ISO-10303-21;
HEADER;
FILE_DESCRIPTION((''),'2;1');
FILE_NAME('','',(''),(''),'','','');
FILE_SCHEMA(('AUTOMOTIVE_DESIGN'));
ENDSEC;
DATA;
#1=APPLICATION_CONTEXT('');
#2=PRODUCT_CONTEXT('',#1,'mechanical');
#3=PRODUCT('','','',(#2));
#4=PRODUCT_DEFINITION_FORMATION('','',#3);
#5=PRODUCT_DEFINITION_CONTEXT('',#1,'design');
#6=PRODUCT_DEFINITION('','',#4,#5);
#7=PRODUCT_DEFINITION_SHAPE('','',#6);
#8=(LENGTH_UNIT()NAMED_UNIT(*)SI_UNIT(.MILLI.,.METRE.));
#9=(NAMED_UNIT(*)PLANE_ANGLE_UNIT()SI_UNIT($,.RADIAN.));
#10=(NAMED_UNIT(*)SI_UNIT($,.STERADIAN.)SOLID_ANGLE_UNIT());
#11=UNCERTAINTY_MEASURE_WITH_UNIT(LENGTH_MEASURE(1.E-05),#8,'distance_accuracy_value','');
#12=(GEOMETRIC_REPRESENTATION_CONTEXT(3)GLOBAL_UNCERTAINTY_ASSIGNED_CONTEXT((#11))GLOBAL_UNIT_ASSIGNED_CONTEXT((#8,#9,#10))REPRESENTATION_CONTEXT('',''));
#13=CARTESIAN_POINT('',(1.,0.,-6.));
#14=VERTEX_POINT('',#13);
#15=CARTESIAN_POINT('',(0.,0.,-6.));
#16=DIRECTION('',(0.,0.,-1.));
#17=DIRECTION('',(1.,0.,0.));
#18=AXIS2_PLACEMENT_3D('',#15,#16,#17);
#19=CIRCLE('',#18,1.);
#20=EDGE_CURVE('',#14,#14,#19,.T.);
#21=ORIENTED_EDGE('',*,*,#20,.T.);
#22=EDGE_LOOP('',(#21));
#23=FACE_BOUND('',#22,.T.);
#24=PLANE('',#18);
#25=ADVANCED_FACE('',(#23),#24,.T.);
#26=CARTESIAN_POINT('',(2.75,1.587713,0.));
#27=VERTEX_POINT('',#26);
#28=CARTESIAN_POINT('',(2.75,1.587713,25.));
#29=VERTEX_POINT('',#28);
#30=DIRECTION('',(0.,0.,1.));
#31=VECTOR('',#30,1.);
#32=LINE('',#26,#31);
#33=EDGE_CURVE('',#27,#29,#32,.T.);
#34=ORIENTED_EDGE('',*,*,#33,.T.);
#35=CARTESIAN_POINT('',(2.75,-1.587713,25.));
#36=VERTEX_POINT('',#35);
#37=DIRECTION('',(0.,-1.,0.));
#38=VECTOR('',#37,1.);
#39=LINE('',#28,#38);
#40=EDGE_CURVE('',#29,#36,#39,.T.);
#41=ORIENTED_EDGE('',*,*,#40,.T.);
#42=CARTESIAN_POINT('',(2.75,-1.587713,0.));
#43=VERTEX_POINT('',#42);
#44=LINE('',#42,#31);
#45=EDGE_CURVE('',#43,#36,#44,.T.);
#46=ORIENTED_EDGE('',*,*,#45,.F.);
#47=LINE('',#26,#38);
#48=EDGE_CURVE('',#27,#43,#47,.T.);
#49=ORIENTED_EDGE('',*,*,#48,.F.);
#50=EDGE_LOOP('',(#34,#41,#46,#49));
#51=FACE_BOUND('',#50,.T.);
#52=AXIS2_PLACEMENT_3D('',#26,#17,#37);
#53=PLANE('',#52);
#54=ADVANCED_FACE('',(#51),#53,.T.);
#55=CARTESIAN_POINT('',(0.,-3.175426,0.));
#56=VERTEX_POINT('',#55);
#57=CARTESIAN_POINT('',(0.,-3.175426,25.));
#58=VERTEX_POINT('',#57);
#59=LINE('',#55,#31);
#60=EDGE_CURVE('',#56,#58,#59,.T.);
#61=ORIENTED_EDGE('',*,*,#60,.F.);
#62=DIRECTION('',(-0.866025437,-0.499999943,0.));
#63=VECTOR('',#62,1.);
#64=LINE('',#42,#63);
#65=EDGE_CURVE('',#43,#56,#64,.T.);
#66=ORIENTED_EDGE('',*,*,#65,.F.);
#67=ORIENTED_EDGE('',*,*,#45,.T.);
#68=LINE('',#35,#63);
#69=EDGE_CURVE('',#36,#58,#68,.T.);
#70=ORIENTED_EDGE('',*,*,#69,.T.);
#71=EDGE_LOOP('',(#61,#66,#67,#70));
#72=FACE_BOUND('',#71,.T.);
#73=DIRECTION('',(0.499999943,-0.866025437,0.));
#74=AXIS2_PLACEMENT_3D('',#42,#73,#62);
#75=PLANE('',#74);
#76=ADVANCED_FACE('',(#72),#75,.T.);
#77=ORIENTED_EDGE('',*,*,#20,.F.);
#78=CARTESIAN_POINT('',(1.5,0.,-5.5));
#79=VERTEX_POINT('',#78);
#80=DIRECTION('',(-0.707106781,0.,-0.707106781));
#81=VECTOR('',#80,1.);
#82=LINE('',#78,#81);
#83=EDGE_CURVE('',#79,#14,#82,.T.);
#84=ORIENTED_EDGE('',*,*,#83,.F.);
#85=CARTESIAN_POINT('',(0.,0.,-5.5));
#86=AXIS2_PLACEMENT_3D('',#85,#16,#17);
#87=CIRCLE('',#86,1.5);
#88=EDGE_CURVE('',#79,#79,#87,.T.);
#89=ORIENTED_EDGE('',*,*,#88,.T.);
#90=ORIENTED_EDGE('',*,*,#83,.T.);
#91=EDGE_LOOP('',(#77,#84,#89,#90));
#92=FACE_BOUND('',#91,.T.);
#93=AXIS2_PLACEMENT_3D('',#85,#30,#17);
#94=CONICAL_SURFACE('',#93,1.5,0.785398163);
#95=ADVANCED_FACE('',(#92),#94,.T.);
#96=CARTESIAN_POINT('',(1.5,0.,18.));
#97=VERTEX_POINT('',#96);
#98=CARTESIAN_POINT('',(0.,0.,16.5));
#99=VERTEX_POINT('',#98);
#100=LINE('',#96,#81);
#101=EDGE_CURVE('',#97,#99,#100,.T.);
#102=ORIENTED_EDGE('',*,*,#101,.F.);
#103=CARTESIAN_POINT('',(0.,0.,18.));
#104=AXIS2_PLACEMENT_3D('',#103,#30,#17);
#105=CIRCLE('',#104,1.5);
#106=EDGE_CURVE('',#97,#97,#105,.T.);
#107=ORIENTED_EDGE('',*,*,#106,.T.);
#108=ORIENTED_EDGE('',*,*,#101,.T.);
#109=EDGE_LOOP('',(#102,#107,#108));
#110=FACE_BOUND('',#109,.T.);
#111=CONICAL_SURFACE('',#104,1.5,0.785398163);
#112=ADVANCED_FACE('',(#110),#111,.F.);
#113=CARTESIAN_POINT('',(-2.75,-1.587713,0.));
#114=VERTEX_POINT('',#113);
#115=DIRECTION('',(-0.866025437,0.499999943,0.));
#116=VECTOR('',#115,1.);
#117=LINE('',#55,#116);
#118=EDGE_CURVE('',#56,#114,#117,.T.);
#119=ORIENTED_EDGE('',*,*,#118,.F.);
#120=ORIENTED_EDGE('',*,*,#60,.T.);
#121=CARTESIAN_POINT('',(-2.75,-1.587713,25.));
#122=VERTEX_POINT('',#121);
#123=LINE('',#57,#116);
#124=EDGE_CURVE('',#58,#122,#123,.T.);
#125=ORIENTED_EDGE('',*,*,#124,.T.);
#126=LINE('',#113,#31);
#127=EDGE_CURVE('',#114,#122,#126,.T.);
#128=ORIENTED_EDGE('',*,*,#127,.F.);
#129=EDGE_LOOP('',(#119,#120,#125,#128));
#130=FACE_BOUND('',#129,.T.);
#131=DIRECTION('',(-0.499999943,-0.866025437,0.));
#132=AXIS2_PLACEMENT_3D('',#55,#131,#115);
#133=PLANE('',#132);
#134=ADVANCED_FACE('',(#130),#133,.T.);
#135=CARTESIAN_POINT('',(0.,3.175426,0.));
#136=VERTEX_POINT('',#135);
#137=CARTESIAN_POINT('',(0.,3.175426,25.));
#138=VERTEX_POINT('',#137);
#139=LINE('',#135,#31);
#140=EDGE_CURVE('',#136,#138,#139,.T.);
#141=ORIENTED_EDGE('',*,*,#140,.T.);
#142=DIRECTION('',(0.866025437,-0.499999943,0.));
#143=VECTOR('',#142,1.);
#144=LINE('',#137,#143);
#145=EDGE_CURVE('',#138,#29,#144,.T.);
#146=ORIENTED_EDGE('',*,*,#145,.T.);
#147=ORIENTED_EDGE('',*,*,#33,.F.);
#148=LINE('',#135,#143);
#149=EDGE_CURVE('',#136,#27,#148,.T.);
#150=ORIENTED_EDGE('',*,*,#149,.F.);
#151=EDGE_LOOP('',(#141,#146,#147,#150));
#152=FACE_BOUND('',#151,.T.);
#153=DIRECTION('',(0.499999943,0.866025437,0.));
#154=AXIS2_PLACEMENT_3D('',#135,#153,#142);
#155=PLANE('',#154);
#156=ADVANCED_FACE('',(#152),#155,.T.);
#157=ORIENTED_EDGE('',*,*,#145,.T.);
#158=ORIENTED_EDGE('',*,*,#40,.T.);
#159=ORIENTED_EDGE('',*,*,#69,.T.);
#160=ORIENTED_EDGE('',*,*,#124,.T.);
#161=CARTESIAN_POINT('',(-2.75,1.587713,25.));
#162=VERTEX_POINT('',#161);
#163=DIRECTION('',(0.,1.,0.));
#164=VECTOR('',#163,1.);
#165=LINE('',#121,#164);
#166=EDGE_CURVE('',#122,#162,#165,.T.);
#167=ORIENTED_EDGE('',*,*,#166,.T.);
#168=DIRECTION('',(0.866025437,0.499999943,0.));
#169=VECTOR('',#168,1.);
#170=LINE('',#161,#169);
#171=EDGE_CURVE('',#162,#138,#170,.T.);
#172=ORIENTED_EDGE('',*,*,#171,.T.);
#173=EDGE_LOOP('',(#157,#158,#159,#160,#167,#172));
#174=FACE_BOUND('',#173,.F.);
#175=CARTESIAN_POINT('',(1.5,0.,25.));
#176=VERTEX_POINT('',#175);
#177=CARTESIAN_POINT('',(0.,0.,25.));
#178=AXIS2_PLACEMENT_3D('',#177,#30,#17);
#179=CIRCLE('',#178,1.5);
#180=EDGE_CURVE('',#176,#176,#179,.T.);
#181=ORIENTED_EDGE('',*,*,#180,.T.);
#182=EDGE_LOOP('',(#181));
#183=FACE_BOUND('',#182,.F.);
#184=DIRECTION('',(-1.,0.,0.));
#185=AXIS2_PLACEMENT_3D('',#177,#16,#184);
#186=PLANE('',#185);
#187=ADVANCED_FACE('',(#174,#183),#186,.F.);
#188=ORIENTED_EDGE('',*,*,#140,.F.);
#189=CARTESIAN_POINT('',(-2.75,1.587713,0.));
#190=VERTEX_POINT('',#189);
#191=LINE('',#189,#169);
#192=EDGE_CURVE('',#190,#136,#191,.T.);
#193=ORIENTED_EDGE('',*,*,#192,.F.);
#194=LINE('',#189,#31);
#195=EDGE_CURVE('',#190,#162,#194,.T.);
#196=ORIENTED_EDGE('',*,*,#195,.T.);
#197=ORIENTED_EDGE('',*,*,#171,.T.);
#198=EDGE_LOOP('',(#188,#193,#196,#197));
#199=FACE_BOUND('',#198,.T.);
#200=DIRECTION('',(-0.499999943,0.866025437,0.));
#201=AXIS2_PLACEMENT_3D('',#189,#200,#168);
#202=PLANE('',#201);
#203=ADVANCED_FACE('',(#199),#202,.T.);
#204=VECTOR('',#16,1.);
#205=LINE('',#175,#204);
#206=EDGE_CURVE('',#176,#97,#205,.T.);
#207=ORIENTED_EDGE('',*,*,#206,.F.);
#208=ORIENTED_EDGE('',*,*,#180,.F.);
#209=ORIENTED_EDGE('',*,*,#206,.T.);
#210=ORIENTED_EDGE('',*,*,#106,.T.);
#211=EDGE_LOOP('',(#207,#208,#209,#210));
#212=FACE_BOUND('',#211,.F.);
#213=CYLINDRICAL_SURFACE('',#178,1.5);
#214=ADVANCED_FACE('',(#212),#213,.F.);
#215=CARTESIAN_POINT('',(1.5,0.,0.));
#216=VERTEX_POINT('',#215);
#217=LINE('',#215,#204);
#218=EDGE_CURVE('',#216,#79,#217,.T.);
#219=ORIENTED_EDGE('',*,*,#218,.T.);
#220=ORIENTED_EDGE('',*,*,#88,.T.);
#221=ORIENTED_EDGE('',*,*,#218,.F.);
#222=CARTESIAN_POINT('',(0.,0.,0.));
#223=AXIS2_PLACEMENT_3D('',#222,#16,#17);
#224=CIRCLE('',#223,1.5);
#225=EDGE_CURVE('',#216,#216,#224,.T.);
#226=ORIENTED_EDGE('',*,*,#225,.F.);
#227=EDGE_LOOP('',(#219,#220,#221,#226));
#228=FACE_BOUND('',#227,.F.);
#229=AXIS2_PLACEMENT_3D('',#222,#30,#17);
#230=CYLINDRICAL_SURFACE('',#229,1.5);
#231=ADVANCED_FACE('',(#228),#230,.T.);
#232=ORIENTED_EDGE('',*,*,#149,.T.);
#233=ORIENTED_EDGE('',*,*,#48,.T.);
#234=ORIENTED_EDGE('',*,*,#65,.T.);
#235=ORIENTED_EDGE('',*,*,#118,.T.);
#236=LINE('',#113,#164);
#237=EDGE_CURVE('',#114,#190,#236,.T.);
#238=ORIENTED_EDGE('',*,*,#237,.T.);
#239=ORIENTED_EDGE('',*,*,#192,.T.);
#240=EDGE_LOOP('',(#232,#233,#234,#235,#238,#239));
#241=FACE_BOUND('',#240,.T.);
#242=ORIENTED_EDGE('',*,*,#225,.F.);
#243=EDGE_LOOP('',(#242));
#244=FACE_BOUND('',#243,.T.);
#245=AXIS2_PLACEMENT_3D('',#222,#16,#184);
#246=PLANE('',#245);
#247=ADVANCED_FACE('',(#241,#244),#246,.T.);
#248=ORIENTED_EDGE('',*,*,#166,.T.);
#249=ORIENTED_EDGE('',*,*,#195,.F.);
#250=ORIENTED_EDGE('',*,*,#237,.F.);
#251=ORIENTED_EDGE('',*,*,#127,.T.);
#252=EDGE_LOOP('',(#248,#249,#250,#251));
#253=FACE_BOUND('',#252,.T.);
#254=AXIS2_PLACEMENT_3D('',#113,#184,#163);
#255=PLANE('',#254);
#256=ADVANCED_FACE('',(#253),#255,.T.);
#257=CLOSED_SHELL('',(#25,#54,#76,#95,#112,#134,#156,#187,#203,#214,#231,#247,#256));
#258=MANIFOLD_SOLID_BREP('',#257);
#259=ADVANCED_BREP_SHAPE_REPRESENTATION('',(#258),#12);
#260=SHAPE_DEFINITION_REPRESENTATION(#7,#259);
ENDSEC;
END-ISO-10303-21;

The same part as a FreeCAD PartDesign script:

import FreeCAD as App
import Part
import Sketcher
Q = App.Units.Quantity


def edges_at(feature, points):
    """Names of the edges that pass closest to the given points."""
    edges = feature.Shape.Edges
    near = lambda p: min(range(len(edges)), key=lambda i: edges[i].distToShape(Part.Vertex(*p))[0])
    return sorted({f"Edge{near(p) + 1}" for p in points})


def add_polygon(sketch, points):
    """Adds a closed chain of lines whose ends are joined by coincident constraints."""
    first, n = sketch.GeometryCount, len(points)
    for a, b in zip(points, points[1:] + points[:1]):
        sketch.addGeometry(Part.LineSegment(App.Vector(*a, 0), App.Vector(*b, 0)), False)
    for i in range(n):
        sketch.addConstraint(Sketcher.Constraint("Coincident", first + i, 2, first + (i + 1) % n, 1))

doc = App.newDocument("Part")
params = doc.addObject("Spreadsheet::Sheet", "Params")
for row, (alias, value) in enumerate([
    ("pad1_length", "25 mm"),
    ("sketch2_diameter", "3 mm"),
    ("pad2_length", "6 mm"),
    ("sketch3_diameter", "3 mm"),
    ("pocket1_length", "8.5 mm"),
    ("chamfer_size", "1.5 mm"),
    ("chamfer2_size", "0.5 mm"),
], start=1):
    params.set(f"A{row}", alias)
    params.set(f"B{row}", "=" + value)
    params.setAlias(f"B{row}", alias)

body = doc.addObject("PartDesign::Body", "Body")

# Sketch on XY plane
sketch1 = doc.addObject("Sketcher::SketchObject", "Sketch")
body.addObject(sketch1)
sketch1.AttachmentSupport = (doc.XY_Plane, [""])
sketch1.MapMode = "FlatFace"
add_polygon(sketch1, [(-2.75, 1.587713), (-2.75, -1.587713), (0, -3.175426), (2.75, -1.587713), (2.75, 1.587713), (0, 3.175426)])  # lines 0-5
sketch1.addConstraint(Sketcher.Constraint("Vertical", 0))
sketch1.addConstraint(Sketcher.Constraint("Vertical", 3))
sketch1.addConstraint(Sketcher.Constraint("Symmetric", 0, 2, 3, 2, -1, 1))
sketch1.addConstraint(Sketcher.Constraint("Symmetric", 1, 2, 4, 2, -1, 1))
sketch1.addConstraint(Sketcher.Constraint("PointOnObject", 1, 2, -2))
sketch1.addConstraint(Sketcher.Constraint("Parallel", 2, 5))
sketch1.addConstraint(Sketcher.Constraint("Horizontal", 0, 2, 2, 2))
sketch1.addConstraint(Sketcher.Constraint("Angle", 1, Q("-29.999996 deg")))
sketch1.addConstraint(Sketcher.Constraint("DistanceX", 0, 2, 2, 2, Q("5.5 mm")))
sketch1.addConstraint(Sketcher.Constraint("DistanceY", 0, 2, 0, 1, Q("3.175426 mm")))
pad1 = doc.addObject("PartDesign::Pad", "Pad")
body.addObject(pad1)
pad1.Profile = sketch1
pad1.setExpression("Length", "Params.pad1_length")

# Sketch on XY plane
sketch2 = doc.addObject("Sketcher::SketchObject", "Sketch001")
body.addObject(sketch2)
sketch2.AttachmentSupport = (doc.XY_Plane, [""])
sketch2.MapMode = "FlatFace"
sketch2.addGeometry(Part.Circle(App.Vector(0, 0, 0), App.Vector(0, 0, 1), 1.5), False)
sketch2.addConstraint(Sketcher.Constraint("Coincident", 0, 3, -1, 1))
sketch2.addConstraint(Sketcher.Constraint("Diameter", 0, Q("3 mm")))
sketch2.setExpression("Constraints[1]", "Params.sketch2_diameter")
pad2 = doc.addObject("PartDesign::Pad", "Pad001")
body.addObject(pad2)
pad2.Profile = sketch2
pad2.setExpression("Length", "Params.pad2_length")
pad2.Reversed = True

# Sketch on XY plane
sketch3 = doc.addObject("Sketcher::SketchObject", "Sketch002")
body.addObject(sketch3)
sketch3.AttachmentSupport = (doc.XY_Plane, [""])
sketch3.MapMode = "FlatFace"
sketch3.AttachmentOffset = App.Placement(App.Vector(0, 0, 25), App.Rotation())
sketch3.addGeometry(Part.Circle(App.Vector(0, 0, 0), App.Vector(0, 0, 1), 1.5), False)
sketch3.addConstraint(Sketcher.Constraint("Coincident", 0, 3, -1, 1))
sketch3.addConstraint(Sketcher.Constraint("Diameter", 0, Q("3 mm")))
sketch3.setExpression("Constraints[1]", "Params.sketch3_diameter")
pocket1 = doc.addObject("PartDesign::Pocket", "Pocket")
body.addObject(pocket1)
pocket1.Profile = sketch3
pocket1.setExpression("Length", "Params.pocket1_length")
doc.recompute()

chamfer = doc.addObject("PartDesign::Chamfer", "Chamfer")
body.addObject(chamfer)
chamfer.Base = (pocket1, edges_at(pocket1, [(-1.5, 0, 16.5)]))
chamfer.setExpression("Size", "Params.chamfer_size")
doc.recompute()

chamfer2 = doc.addObject("PartDesign::Chamfer", "Chamfer001")
body.addObject(chamfer2)
chamfer2.Base = (chamfer, edges_at(chamfer, [(-1.5, 0, -6)]))
chamfer2.setExpression("Size", "Params.chamfer2_size")

doc.recompute()
